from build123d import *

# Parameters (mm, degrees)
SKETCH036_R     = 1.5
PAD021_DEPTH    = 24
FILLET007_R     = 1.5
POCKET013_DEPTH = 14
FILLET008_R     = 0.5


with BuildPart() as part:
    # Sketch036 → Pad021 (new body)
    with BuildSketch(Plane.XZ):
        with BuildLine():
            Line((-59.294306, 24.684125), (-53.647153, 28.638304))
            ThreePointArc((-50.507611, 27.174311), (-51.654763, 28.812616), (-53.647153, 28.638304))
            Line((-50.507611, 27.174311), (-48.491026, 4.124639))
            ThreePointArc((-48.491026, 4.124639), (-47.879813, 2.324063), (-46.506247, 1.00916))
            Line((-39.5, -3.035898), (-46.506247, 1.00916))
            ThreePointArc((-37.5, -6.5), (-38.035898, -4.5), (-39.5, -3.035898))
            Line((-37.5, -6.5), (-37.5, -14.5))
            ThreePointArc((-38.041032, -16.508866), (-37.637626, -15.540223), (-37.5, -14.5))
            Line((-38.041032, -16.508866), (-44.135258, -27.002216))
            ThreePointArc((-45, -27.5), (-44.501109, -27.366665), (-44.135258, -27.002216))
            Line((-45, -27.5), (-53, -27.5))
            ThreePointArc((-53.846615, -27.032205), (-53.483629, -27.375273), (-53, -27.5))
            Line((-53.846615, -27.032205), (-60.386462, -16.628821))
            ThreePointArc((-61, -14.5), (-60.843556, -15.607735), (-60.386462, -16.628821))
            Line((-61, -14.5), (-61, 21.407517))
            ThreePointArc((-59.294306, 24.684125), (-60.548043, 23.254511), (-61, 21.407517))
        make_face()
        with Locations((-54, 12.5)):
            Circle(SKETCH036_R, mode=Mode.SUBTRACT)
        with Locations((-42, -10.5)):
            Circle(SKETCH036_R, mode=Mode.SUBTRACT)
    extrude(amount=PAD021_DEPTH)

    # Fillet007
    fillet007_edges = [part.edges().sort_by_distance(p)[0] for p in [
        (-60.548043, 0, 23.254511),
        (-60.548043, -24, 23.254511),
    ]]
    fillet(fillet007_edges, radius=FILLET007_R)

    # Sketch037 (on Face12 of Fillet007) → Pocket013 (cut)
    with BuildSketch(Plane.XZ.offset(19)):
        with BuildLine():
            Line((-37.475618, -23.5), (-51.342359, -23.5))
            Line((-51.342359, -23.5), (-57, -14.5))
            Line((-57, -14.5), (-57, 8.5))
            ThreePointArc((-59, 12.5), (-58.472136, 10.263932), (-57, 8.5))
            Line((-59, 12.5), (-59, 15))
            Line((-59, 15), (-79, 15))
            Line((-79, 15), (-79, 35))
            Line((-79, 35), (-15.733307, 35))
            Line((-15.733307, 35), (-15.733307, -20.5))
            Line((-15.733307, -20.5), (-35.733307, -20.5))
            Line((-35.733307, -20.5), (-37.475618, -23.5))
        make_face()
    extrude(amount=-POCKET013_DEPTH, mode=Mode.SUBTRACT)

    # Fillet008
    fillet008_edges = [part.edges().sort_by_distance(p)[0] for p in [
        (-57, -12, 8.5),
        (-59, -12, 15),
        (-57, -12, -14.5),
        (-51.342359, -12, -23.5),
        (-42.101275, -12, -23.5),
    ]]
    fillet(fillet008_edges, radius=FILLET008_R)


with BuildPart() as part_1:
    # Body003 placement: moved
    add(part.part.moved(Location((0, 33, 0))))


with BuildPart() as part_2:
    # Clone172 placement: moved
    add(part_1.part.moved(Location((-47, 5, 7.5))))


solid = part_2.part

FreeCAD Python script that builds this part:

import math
import FreeCAD as App
import Part
import Sketcher

V = App.Vector
Q = App.Units.Quantity


def edges_at(feature, points):
    """Names of the edges that pass closest to the given points."""
    edges = feature.Shape.Edges
    near = lambda p: min(range(len(edges)), key=lambda i: edges[i].distToShape(Part.Vertex(*p))[0])
    return sorted({f"Edge{near(p) + 1}" for p in points})

doc = App.newDocument("Part")
params = doc.addObject("Spreadsheet::Sheet", "Params")
for row, (alias, value) in enumerate([
    ("sketch1_diameter", "3 mm"),
    ("sketch1_radius", "0.999999 mm"),
    ("sketch1_radius2", "3.999999 mm"),
    ("sketch1_radius3", "1.999999 mm"),
    ("sketch1_width", "8 mm"),
    ("pad1_length", "24 mm"),
    ("fillet_radius", "1.5 mm"),
    ("sketch2_radius", "5 mm"),
    ("sketch2_width", "20 mm"),
    ("sketch2_height", "23 mm"),
    ("sketch2_height2", "55.5 mm"),
    ("sketch2_height3", "2.5 mm"),
    ("pocket1_length", "14 mm"),
    ("fillet2_radius", "0.5 mm"),
], start=1):
    params.set(f"A{row}", alias)
    params.set(f"B{row}", "=" + value)
    params.setAlias(f"B{row}", alias)

body = doc.addObject("PartDesign::Body", "Body")

# Sketch on XZ plane
sketch1 = body.newObject("Sketcher::SketchObject", "Sketch")
sketch1.AttachmentSupport = (doc.getObject("XZ_Plane"), [""])
sketch1.MapMode = "FlatFace"
sketch1.addGeometry([
    Part.LineSegment(V(-53.647153, 28.638304, 0), V(-59.294306, 24.684125, 0)),  # 0
    Part.ArcOfCircle(Part.Circle(V(-56.999996, 21.407515, 0), V(0, 0, 1), 4.000004), math.radians(125.000034), math.radians(179.99997)),  # 1
    Part.LineSegment(V(-61, 21.407517, 0), V(-61, -14.5, 0)),  # 2
    Part.ArcOfCircle(Part.Circle(V(-56.999993, -14.499999, 0), V(0, 0, 1), 4.000007), math.radians(-179.999982), math.radians(-147.845469)),  # 3
    Part.LineSegment(V(-60.386462, -16.628821, 0), V(-53.846615, -27.032205, 0)),  # 4
    Part.ArcOfCircle(Part.Circle(V(-53, -26.500001, 0), V(0, 0, 1), 0.999999), math.radians(-147.845478), math.radians(-89.999992)),  # 5
    Part.LineSegment(V(-53, -27.5, 0), V(-45, -27.5, 0)),  # 6
    Part.ArcOfCircle(Part.Circle(V(-44.999999, -26.500002, 0), V(0, 0, 1), 0.999998), math.radians(-90.000059), math.radians(-30.146647)),  # 7
    Part.LineSegment(V(-44.135258, -27.002216, 0), V(-38.041032, -16.508866, 0)),  # 8
    Part.ArcOfCircle(Part.Circle(V(-41.500015, -14.499996, 0), V(0, 0, 1), 4.000015), math.radians(-30.146683), math.radians(-0.000051)),  # 9
    Part.LineSegment(V(-37.5, -14.5, 0), V(-37.5, -6.5, 0)),  # 10
    Part.ArcOfCircle(Part.Circle(V(-41.499999, -6.499999, 0), V(0, 0, 1), 3.999999), math.radians(-0.000013), math.radians(60.000008)),  # 11
    Part.LineSegment(V(-39.5, -3.035898, 0), V(-46.506247, 1.00916, 0)),  # 12
    Part.ArcOfCircle(Part.Circle(V(-44.506249, 4.473261, 0), V(0, 0, 1), 3.999999), math.radians(-175.000014), math.radians(-119.999986)),  # 13
    Part.LineSegment(V(-48.491026, 4.124639, 0), V(-50.507611, 27.174311, 0)),  # 14
    Part.ArcOfCircle(Part.Circle(V(-52.5, 27.000002, 0), V(0, 0, 1), 1.999999), math.radians(4.999944), math.radians(125.000041)),  # 15
    Part.Circle(V(-42, -10.5, 0), V(0, 0, 1), 1.5),  # 16
    Part.Circle(V(-54, 12.5, 0), V(0, 0, 1), 1.5),  # 17
], False)
sketch1.addConstraint([
    Sketcher.Constraint("Tangent", 0, 2, 1, 1),
    Sketcher.Constraint("Tangent", 1, 2, 2, 1),
    Sketcher.Constraint("Tangent", 2, 2, 3, 1),
    Sketcher.Constraint("Tangent", 3, 2, 4, 1),
    Sketcher.Constraint("Tangent", 4, 2, 5, 1),
    Sketcher.Constraint("Tangent", 5, 2, 6, 1),
    Sketcher.Constraint("Tangent", 6, 2, 7, 1),
    Sketcher.Constraint("Tangent", 7, 2, 8, 1),
    Sketcher.Constraint("Tangent", 8, 2, 9, 1),
    Sketcher.Constraint("Tangent", 9, 2, 10, 1),
    Sketcher.Constraint("Tangent", 10, 2, 11, 1),
    Sketcher.Constraint("Tangent", 11, 2, 12, 1),
    Sketcher.Constraint("Tangent", 12, 2, 13, 2),
    Sketcher.Constraint("Tangent", 13, 1, 14, 1),
    Sketcher.Constraint("Tangent", 14, 2, 15, 1),
    Sketcher.Constraint("Tangent", 15, 2, 0, 1),
    Sketcher.Constraint("Vertical", 2),
    Sketcher.Constraint("Horizontal", 6),
    Sketcher.Constraint("Vertical", 10),
    Sketcher.Constraint("Equal", 5, 7),
    Sketcher.Constraint("Equal", 11, 13),
    Sketcher.Constraint("Equal", 16, 17),
    Sketcher.Constraint("Horizontal", 2, 2, 9, 2),
    Sketcher.Constraint("Equal", 6, 10),
    Sketcher.Constraint("Diameter", 16, 3.0),
    Sketcher.Constraint("Radius", 5, 0.999999),
    Sketcher.Constraint("Radius", 11, 3.999999),
    Sketcher.Constraint("Radius", 15, 1.999999),
    Sketcher.Constraint("DistanceX", 6, 1, 6, 2, 8.0),
    Sketcher.Constraint("Angle", 0, Q("-145.000001 deg")),
    Sketcher.Constraint("Angle", 12, Q("150.000004 deg")),
    Sketcher.Constraint("Angle", 14, Q("95 deg")),
    Sketcher.Constraint("DistanceX", 5, 3, -1, 1, 53.0),
    Sketcher.Constraint("DistanceY", -1, 1, 15, 3, 27.000002),
    Sketcher.Constraint("DistanceX", 16, 3, -1, 1, 42.0),
    Sketcher.Constraint("DistanceX", 17, 3, -1, 1, 54.0),
    Sketcher.Constraint("DistanceX", 1, 2, -1, 1, 61.0),
    Sketcher.Constraint("DistanceX", 15, 3, 11, 3, 11.0),
    Sketcher.Constraint("DistanceY", 16, 3, 11, 3, 4.000001),
    Sketcher.Constraint("DistanceY", 11, 3, 17, 3, 18.999999),
    Sketcher.Constraint("DistanceY", 5, 3, 2, 2, 12.000001),
    Sketcher.Constraint("DistanceY", 3, 3, -1, 1, 14.499999),
    Sketcher.Constraint("DistanceX", 11, 3, -1, 1, 41.499999),
    Sketcher.Constraint("Radius", 1, 4.000004),
    Sketcher.Constraint("Radius", 3, 4.000007),
    Sketcher.Constraint("Radius", 9, 4.000015),
])
sketch1.setExpression("Constraints[24]", "Params.sketch1_diameter")
sketch1.setExpression("Constraints[25]", "Params.sketch1_radius")
sketch1.setExpression("Constraints[26]", "Params.sketch1_radius2")
sketch1.setExpression("Constraints[27]", "Params.sketch1_radius3")
sketch1.setExpression("Constraints[28]", "Params.sketch1_width")
pad1 = body.newObject("PartDesign::Pad", "Pad")
pad1.Profile = sketch1
pad1.setExpression("Length", "Params.pad1_length")
doc.recompute()

fillet = body.newObject("PartDesign::Fillet", "Fillet")
fillet.Base = (pad1, edges_at(pad1, [(-60.548, 0, 23.255), (-60.548, -24, 23.255)]))
fillet.setExpression("Radius", "Params.fillet_radius")

# Sketch on XZ plane
sketch2 = body.newObject("Sketcher::SketchObject", "Sketch001")
sketch2.AttachmentSupport = (doc.getObject("XZ_Plane"), [""])
sketch2.MapMode = "FlatFace"
sketch2.AttachmentOffset = App.Placement(V(0, 0, 19), App.Rotation())
sketch2.addGeometry([
    Part.LineSegment(V(-51.342359, -23.5, 0), V(-37.475618, -23.5, 0)),  # 0
    Part.LineSegment(V(-37.475618, -23.5, 0), V(-35.733307, -20.5, 0)),  # 1
    Part.LineSegment(V(-35.733307, -20.5, 0), V(-15.733307, -20.5, 0)),  # 2
    Part.LineSegment(V(-15.733307, -20.5, 0), V(-15.733307, 35, 0)),  # 3
    Part.LineSegment(V(-15.733307, 35, 0), V(-79, 35, 0)),  # 4
    Part.LineSegment(V(-79, 35, 0), V(-79, 15, 0)),  # 5
    Part.LineSegment(V(-79, 15, 0), V(-59, 15, 0)),  # 6
    Part.LineSegment(V(-59, 15, 0), V(-59, 12.5, 0)),  # 7
    Part.ArcOfCircle(Part.Circle(V(-54, 12.5, 0), V(0, 0, 1), 5), math.radians(179.999998), math.radians(233.130105)),  # 8
    Part.LineSegment(V(-57, 8.5, 0), V(-57, -14.5, 0)),  # 9
    Part.LineSegment(V(-57, -14.5, 0), V(-51.342359, -23.5, 0)),  # 10
], False)
sketch2.addConstraint([
    Sketcher.Constraint("Coincident", 0, 2, 1, 1),
    Sketcher.Constraint("Coincident", 1, 2, 2, 1),
    Sketcher.Constraint("Coincident", 2, 2, 3, 1),
    Sketcher.Constraint("Coincident", 3, 2, 4, 1),
    Sketcher.Constraint("Coincident", 4, 2, 5, 1),
    Sketcher.Constraint("Coincident", 5, 2, 6, 1),
    Sketcher.Constraint("Coincident", 6, 2, 7, 1),
    Sketcher.Constraint("Tangent", 7, 2, 8, 1),
    Sketcher.Constraint("Coincident", 8, 2, 9, 1),
    Sketcher.Constraint("Coincident", 9, 2, 10, 1),
    Sketcher.Constraint("Coincident", 10, 2, 0, 1),
    Sketcher.Constraint("Horizontal", 0),
    Sketcher.Constraint("Horizontal", 2),
    Sketcher.Constraint("Vertical", 3),
    Sketcher.Constraint("Horizontal", 4),
    Sketcher.Constraint("Vertical", 5),
    Sketcher.Constraint("Horizontal", 6),
    Sketcher.Constraint("Vertical", 7),
    Sketcher.Constraint("Vertical", 9),
    Sketcher.Constraint("Equal", 2, 6),
    Sketcher.Constraint("Equal", 6, 5),
    Sketcher.Constraint("Radius", 8, 5.0),
    Sketcher.Constraint("DistanceX", 2, 1, 2, 2, 20.0),
    Sketcher.Constraint("DistanceY", 9, 2, 9, 1, 23.0),
    Sketcher.Constraint("DistanceY", 3, 1, 3, 2, 55.5),
    Sketcher.Constraint("DistanceY", 7, 2, 7, 1, 2.5),
    Sketcher.Constraint("DistanceX", 8, 3, -1, 1, 54.0),
    Sketcher.Constraint("DistanceY", -1, 1, 3, 2, 35.0),
    Sketcher.Constraint("DistanceX", 8, 2, -1, 1, 57.0),
    Sketcher.Constraint("DistanceY", 0, 2, 8, 3, 36.0),
    Sketcher.Constraint("DistanceX", 0, 1, 0, 2, 13.866741),
    Sketcher.Constraint("DistanceX", 4, 2, 4, 1, 63.266693),
    Sketcher.Constraint("DistanceX", 10, 2, -1, 1, 51.342359),
])
sketch2.setExpression("Constraints[21]", "Params.sketch2_radius")
sketch2.setExpression("Constraints[22]", "Params.sketch2_width")
sketch2.setExpression("Constraints[23]", "Params.sketch2_height")
sketch2.setExpression("Constraints[24]", "Params.sketch2_height2")
sketch2.setExpression("Constraints[25]", "Params.sketch2_height3")
pocket1 = body.newObject("PartDesign::Pocket", "Pocket")
pocket1.Profile = sketch2
pocket1.setExpression("Length", "Params.pocket1_length")
doc.recompute()

fillet2 = body.newObject("PartDesign::Fillet", "Fillet001")
fillet2.Base = (pocket1, edges_at(pocket1, [
    (-57, -12, 8.5),
    (-59, -12, 15),
    (-57, -12, -14.5),
    (-51.342, -12, -23.5),
    (-42.101, -12, -23.5),
]))
fillet2.setExpression("Radius", "Params.fillet2_radius")
body2 = doc.addObject("PartDesign::Body", "Body001")
doc.recompute()

body.Placement = App.Placement(V(0, 33, 0), App.Rotation(V(0, 0, 1), 0))
boolean = body2.newObject("PartDesign::Boolean", "Boolean")
boolean.Type = "Fuse"
boolean.addObjects([body])
body3 = doc.addObject("PartDesign::Body", "Body002")
doc.recompute()

body2.Placement = App.Placement(V(-47, 5, 7.5), App.Rotation(V(0, 0, 1), 0))
boolean2 = body3.newObject("PartDesign::Boolean", "Boolean001")
boolean2.Type = "Fuse"
boolean2.addObjects([body2])

doc.recompute()
